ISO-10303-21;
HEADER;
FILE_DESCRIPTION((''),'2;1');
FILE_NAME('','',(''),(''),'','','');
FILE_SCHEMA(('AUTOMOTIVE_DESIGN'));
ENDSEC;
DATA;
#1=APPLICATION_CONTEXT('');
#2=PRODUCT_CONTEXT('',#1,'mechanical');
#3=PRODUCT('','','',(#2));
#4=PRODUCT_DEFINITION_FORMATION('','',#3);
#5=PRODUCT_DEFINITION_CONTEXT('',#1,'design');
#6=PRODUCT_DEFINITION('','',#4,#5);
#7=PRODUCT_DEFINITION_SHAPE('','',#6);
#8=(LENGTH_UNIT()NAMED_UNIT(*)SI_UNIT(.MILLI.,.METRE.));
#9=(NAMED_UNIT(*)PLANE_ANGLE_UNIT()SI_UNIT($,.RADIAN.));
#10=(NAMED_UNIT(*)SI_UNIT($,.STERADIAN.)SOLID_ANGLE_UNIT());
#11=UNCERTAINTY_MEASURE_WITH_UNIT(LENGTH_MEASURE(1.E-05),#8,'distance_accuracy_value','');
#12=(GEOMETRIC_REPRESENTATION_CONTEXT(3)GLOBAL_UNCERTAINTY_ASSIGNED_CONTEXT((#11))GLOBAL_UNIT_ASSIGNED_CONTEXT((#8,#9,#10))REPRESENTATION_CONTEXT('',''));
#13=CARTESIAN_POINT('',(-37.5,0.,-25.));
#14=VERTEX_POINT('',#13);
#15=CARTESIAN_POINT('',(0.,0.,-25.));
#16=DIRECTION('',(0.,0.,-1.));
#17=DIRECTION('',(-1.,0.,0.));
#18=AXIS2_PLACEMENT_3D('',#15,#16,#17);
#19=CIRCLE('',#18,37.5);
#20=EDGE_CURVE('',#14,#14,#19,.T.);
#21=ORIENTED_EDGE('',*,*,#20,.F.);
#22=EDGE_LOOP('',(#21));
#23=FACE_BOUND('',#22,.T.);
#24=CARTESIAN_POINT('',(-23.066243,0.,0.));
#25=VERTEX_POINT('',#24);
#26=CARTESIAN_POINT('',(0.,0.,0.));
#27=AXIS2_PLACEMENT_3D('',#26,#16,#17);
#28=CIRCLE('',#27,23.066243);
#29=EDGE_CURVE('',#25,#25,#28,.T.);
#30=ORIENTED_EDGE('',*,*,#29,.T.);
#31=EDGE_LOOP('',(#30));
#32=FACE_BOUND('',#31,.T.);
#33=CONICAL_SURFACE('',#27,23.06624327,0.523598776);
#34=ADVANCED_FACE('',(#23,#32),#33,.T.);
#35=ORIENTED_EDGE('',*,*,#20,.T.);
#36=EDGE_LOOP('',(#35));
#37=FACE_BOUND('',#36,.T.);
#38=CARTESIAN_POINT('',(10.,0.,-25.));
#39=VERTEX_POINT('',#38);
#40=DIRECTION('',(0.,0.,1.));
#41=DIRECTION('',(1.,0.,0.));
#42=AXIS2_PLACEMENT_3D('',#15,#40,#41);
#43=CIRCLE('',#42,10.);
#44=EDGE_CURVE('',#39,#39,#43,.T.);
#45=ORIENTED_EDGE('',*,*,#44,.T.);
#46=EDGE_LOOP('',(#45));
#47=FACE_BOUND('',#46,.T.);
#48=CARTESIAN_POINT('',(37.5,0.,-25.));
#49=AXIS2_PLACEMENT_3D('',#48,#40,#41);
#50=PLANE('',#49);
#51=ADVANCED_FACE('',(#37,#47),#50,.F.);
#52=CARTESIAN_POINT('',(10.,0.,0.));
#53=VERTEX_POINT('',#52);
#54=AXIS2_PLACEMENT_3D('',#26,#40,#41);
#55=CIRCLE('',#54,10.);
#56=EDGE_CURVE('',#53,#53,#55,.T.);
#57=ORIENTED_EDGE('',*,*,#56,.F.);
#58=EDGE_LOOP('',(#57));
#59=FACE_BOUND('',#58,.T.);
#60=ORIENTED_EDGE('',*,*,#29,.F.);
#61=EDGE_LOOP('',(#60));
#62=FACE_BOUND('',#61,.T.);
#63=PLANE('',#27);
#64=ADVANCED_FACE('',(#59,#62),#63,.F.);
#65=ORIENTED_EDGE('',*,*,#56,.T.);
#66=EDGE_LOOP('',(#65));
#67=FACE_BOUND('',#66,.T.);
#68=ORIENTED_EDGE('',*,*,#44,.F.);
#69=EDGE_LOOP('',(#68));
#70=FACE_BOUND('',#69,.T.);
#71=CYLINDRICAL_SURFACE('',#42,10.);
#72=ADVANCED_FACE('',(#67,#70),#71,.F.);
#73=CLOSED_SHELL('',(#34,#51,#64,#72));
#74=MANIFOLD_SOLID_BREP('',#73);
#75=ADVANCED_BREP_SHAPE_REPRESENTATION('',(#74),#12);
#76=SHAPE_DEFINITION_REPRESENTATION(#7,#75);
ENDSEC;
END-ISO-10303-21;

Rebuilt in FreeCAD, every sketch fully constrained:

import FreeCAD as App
import Part
import Sketcher
Q = App.Units.Quantity


def add_polygon(sketch, points):
    """Adds a closed chain of lines whose ends are joined by coincident constraints."""
    first, n = sketch.GeometryCount, len(points)
    for a, b in zip(points, points[1:] + points[:1]):
        sketch.addGeometry(Part.LineSegment(App.Vector(*a, 0), App.Vector(*b, 0)), False)
    for i in range(n):
        sketch.addConstraint(Sketcher.Constraint("Coincident", first + i, 2, first + (i + 1) % n, 1))

doc = App.newDocument("Part")
body = doc.addObject("PartDesign::Body", "Body")

# Sketch on XZ plane
sketch1 = body.newObject("Sketcher::SketchObject", "Sketch")
sketch1.AttachmentSupport = (doc.getObject("XZ_Plane"), [""])
sketch1.MapMode = "FlatFace"
add_polygon(sketch1, [(0, 0), (23, 0), (38, -25), (0, -25)])  # lines 0-3
sketch1.addConstraint([
    Sketcher.Constraint("Horizontal", 0),
    Sketcher.Constraint("Horizontal", 2),
    Sketcher.Constraint("Vertical", 3),
    Sketcher.Constraint("Coincident", 3, 2, -1, 1),
    Sketcher.Constraint("DistanceY", 3, 1, 3, 2, 25.0),
    Sketcher.Constraint("Angle", 1, Q("-60 deg")),
    Sketcher.Constraint("DistanceX", 2, 2, 2, 1, 37.5),
])
revolution = body.newObject("PartDesign::Revolution", "Revolution")
revolution.Profile = sketch1
revolution.ReferenceAxis = (sketch1, ["V_Axis"])
revolution.Angle = 360

# Sketch on XY plane
sketch2 = body.newObject("Sketcher::SketchObject", "Sketch001")
sketch2.AttachmentSupport = (doc.getObject("XY_Plane"), [""])
sketch2.MapMode = "FlatFace"
sketch2.addGeometry(Part.Circle(App.Vector(0, 0, 0), App.Vector(0, 0, 1), 10), False)
sketch2.addConstraint([
    Sketcher.Constraint("Coincident", 0, 3, -1, 1),
    Sketcher.Constraint("Diameter", 0, 20.0),
])
pocket1 = body.newObject("PartDesign::Pocket", "Pocket")
pocket1.Profile = sketch2
pocket1.Type = "ThroughAll"

doc.recompute()
